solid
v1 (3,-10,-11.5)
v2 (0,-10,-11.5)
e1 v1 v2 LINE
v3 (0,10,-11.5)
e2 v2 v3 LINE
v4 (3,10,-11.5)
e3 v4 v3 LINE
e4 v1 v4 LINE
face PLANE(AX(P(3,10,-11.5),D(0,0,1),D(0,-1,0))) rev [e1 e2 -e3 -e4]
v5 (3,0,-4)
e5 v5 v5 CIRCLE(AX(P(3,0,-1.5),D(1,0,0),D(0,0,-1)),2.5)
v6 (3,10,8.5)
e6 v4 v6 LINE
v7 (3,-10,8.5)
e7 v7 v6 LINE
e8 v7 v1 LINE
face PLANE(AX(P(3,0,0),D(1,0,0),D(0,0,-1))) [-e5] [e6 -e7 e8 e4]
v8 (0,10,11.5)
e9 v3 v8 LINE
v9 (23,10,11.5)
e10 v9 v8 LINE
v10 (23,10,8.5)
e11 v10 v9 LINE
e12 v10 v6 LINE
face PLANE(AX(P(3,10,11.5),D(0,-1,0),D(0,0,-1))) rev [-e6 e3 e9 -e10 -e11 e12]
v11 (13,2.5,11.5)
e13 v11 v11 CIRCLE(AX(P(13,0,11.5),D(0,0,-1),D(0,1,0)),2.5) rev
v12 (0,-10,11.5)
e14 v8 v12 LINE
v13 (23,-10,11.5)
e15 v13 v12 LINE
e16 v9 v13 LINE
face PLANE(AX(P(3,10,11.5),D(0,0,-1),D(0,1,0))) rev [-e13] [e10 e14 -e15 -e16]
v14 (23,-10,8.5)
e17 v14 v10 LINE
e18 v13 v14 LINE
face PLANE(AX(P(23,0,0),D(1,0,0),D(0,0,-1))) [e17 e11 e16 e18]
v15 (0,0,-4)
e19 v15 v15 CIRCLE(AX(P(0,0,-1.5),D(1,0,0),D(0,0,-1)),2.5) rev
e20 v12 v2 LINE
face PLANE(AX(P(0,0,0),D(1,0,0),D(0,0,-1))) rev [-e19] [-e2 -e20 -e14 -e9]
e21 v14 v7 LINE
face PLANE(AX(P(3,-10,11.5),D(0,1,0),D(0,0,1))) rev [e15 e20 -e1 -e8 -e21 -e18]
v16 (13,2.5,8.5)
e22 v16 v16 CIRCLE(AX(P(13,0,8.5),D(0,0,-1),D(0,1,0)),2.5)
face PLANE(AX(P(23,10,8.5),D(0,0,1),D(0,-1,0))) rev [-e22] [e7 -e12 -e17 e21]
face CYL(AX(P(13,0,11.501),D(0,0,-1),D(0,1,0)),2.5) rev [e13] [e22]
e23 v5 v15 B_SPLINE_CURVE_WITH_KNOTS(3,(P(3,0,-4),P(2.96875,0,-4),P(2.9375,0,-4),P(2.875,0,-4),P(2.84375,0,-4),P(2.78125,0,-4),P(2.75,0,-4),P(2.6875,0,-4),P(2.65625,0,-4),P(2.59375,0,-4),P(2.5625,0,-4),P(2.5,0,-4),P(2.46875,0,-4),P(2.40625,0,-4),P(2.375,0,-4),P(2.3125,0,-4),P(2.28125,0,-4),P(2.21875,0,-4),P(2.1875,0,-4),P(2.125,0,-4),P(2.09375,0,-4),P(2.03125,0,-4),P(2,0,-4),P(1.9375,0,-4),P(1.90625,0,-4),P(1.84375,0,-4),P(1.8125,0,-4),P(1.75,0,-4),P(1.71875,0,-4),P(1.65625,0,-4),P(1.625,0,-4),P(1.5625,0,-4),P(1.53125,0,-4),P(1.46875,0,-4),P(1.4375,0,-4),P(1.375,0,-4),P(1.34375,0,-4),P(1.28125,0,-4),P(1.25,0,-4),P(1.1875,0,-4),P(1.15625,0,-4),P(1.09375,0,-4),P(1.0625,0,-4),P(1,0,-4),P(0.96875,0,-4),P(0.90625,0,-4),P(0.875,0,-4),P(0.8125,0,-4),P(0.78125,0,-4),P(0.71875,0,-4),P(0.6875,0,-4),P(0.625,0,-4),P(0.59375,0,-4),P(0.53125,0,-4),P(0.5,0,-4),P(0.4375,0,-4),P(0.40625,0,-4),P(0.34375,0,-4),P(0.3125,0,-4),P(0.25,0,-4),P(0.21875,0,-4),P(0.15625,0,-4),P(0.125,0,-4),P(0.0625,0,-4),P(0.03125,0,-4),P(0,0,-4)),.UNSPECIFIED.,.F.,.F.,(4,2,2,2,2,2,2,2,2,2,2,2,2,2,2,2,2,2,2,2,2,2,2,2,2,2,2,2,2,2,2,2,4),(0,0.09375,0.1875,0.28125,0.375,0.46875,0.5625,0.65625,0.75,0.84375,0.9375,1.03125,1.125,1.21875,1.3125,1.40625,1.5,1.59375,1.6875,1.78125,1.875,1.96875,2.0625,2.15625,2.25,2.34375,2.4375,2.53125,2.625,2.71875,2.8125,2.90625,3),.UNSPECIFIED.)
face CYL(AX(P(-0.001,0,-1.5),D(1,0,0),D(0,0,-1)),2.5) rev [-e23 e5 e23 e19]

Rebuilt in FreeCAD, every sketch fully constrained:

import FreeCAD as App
import Part
import Sketcher
from FreeCAD import Vector
Q = App.Units.Quantity

doc = App.newDocument("Part")
body = doc.addObject("PartDesign::Body", "Body")

sketch1 = body.newObject("Sketcher::SketchObject", "Sketch")
sketch1.AttachmentSupport = (doc.getObject("YZ_Plane"), [""])
sketch1.MapMode = "FlatFace"
sketch1.addGeometry(Part.LineSegment(Vector(10, 12, 0), Vector(-10, 12, 0)), False)
sketch1.addGeometry(Part.LineSegment(Vector(-10, 12, 0), Vector(-10, -12, 0)), False)
sketch1.addGeometry(Part.LineSegment(Vector(-10, -12, 0), Vector(10, -12, 0)), False)
sketch1.addGeometry(Part.LineSegment(Vector(10, -12, 0), Vector(10, 12, 0)), False)
sketch1.addConstraint(Sketcher.Constraint("Coincident", 0, 2, 1, 1))
sketch1.addConstraint(Sketcher.Constraint("Coincident", 1, 2, 2, 1))
sketch1.addConstraint(Sketcher.Constraint("Coincident", 2, 2, 3, 1))
sketch1.addConstraint(Sketcher.Constraint("Coincident", 3, 2, 0, 1))
sketch1.addConstraint(Sketcher.Constraint("Horizontal", 0))
sketch1.addConstraint(Sketcher.Constraint("Vertical", 1))
sketch1.addConstraint(Sketcher.Constraint("Horizontal", 2))
sketch1.addConstraint(Sketcher.Constraint("Vertical", 3))
sketch1.addConstraint(Sketcher.Constraint("Symmetric", 0, 2, 2, 2, -1, 1))
sketch1.addConstraint(Sketcher.Constraint("DistanceX", 0, 2, 0, 1, Q("20 mm")))
sketch1.addConstraint(Sketcher.Constraint("DistanceY", 1, 2, 1, 1, Q("23 mm")))
pad1 = body.newObject("PartDesign::Pad", "Pad")
pad1.Profile = sketch1
pad1.Length = 3

sketch2 = body.newObject("Sketcher::SketchObject", "Sketch001")
sketch2.AttachmentSupport = (doc.getObject("YZ_Plane"), [""])
sketch2.MapMode = "FlatFace"
sketch2.AttachmentOffset = App.Placement(Vector(0, 0, 3), App.Rotation())
sketch2.addGeometry(Part.LineSegment(Vector(10, 11.5, 0), Vector(-10, 11.5, 0)), False)
sketch2.addGeometry(Part.LineSegment(Vector(-10, 11.5, 0), Vector(-10, 8.5, 0)), False)
sketch2.addGeometry(Part.LineSegment(Vector(-10, 8.5, 0), Vector(10, 8.5, 0)), False)
sketch2.addGeometry(Part.LineSegment(Vector(10, 8.5, 0), Vector(10, 11.5, 0)), False)
sketch2.addConstraint(Sketcher.Constraint("Coincident", 0, 2, 1, 1))
sketch2.addConstraint(Sketcher.Constraint("Coincident", 1, 2, 2, 1))
sketch2.addConstraint(Sketcher.Constraint("Coincident", 2, 2, 3, 1))
sketch2.addConstraint(Sketcher.Constraint("Coincident", 3, 2, 0, 1))
sketch2.addConstraint(Sketcher.Constraint("Horizontal", 0))
sketch2.addConstraint(Sketcher.Constraint("Vertical", 1))
sketch2.addConstraint(Sketcher.Constraint("Horizontal", 2))
sketch2.addConstraint(Sketcher.Constraint("Vertical", 3))
sketch2.addConstraint(Sketcher.Constraint("DistanceX", 0, 2, 0, 1, Q("20 mm")))
sketch2.addConstraint(Sketcher.Constraint("DistanceY", 1, 2, 1, 1, Q("3 mm")))
sketch2.addConstraint(Sketcher.Constraint("DistanceX", 0, 2, -1, 1, Q("10 mm")))
sketch2.addConstraint(Sketcher.Constraint("DistanceY", -1, 1, 0, 2, Q("11.5 mm")))
pad2 = body.newObject("PartDesign::Pad", "Pad001")
pad2.Profile = sketch2
pad2.Length = 20

sketch3 = body.newObject("Sketcher::SketchObject", "Sketch002")
sketch3.AttachmentSupport = (doc.getObject("YZ_Plane"), [""])
sketch3.MapMode = "FlatFace"
sketch3.AttachmentOffset = App.Placement(Vector(0, 0, 3), App.Rotation())
sketch3.addGeometry(Part.Circle(Vector(0, -1.5, 0), Vector(0, 0, 1), 2.5), False)
sketch3.addConstraint(Sketcher.Constraint("PointOnObject", 0, 3, -2))
sketch3.addConstraint(Sketcher.Constraint("Diameter", 0, Q("5 mm")))
sketch3.addConstraint(Sketcher.Constraint("DistanceY", 0, 3, -1, 1, Q("1.5 mm")))
pocket1 = body.newObject("PartDesign::Pocket", "Pocket")
pocket1.Profile = sketch3
pocket1.Type = "UpToFirst"

sketch4 = body.newObject("Sketcher::SketchObject", "Sketch003")
sketch4.AttachmentSupport = (doc.getObject("XY_Plane"), [""])
sketch4.MapMode = "FlatFace"
sketch4.AttachmentOffset = App.Placement(Vector(0, 0, 8.5), App.Rotation())
sketch4.addGeometry(Part.Circle(Vector(13, 0, 0), Vector(0, 0, 1), 2.5), False)
sketch4.addConstraint(Sketcher.Constraint("PointOnObject", 0, 3, -1))
sketch4.addConstraint(Sketcher.Constraint("Diameter", 0, Q("5 mm")))
sketch4.addConstraint(Sketcher.Constraint("DistanceX", -1, 1, 0, 3, Q("13 mm")))
pocket2 = body.newObject("PartDesign::Pocket", "Pocket001")
pocket2.Profile = sketch4
pocket2.Type = "UpToFirst"
pocket2.Reversed = True

doc.recompute()
